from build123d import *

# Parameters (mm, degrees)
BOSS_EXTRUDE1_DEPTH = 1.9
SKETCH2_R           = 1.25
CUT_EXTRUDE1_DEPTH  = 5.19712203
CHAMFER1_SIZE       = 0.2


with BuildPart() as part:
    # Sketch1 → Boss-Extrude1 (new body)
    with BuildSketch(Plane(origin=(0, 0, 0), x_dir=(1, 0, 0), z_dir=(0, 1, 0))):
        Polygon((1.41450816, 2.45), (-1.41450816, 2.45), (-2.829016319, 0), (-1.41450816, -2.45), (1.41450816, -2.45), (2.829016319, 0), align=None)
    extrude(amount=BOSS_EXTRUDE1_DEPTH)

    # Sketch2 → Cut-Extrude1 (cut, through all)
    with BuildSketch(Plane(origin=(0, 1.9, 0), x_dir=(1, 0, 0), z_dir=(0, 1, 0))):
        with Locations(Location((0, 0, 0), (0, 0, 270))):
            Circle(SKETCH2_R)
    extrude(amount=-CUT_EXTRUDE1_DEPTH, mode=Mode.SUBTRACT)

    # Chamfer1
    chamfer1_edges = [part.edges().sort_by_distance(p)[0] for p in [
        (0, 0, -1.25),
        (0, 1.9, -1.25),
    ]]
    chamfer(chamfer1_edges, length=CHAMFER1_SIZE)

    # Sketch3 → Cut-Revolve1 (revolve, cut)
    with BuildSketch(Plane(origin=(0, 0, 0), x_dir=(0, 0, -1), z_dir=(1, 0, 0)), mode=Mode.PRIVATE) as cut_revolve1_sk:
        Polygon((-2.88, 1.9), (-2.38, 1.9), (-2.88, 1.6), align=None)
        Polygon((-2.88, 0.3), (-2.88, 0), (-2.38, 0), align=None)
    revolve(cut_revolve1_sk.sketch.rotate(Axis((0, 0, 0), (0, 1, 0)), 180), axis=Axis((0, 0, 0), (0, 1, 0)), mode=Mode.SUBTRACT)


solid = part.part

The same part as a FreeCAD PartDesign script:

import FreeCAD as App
import Part
import Sketcher

V = App.Vector
Q = App.Units.Quantity


def edges_at(feature, points):
    """Names of the edges that pass closest to the given points."""
    edges = feature.Shape.Edges
    near = lambda p: min(range(len(edges)), key=lambda i: edges[i].distToShape(Part.Vertex(*p))[0])
    return sorted({f"Edge{near(p) + 1}" for p in points})


def add_polygon(sketch, points):
    """Adds a closed chain of lines whose ends are joined by coincident constraints."""
    first, n = sketch.GeometryCount, len(points)
    for a, b in zip(points, points[1:] + points[:1]):
        sketch.addGeometry(Part.LineSegment(App.Vector(*a, 0), App.Vector(*b, 0)), False)
    for i in range(n):
        sketch.addConstraint(Sketcher.Constraint("Coincident", first + i, 2, first + (i + 1) % n, 1))

doc = App.newDocument("Part")
body = doc.addObject("PartDesign::Body", "Body")

sketch1 = body.newObject("Sketcher::SketchObject", "Sketch")
sketch1.AttachmentSupport = (doc.getObject("XZ_Plane"), [""])
sketch1.MapMode = "FlatFace"
add_polygon(sketch1, [(1.414508, -2.45), (-1.414508, -2.45), (-2.829016, 0), (-1.414508, 2.45), (1.414508, 2.45), (2.829016, 0)])
sketch1.addConstraint([
    Sketcher.Constraint("Horizontal", 0),
    Sketcher.Constraint("Horizontal", 3),
    Sketcher.Constraint("Symmetric", 0, 2, 3, 2, -1, 1),
    Sketcher.Constraint("Symmetric", 1, 2, 4, 2, -1, 1),
    Sketcher.Constraint("PointOnObject", 1, 2, -1),
    Sketcher.Constraint("Parallel", 2, 5),
    Sketcher.Constraint("Vertical", 0, 2, 2, 2),
    Sketcher.Constraint("Angle", 1, Q("120 deg")),
    Sketcher.Constraint("DistanceY", 0, 2, 2, 2, 4.9),
    Sketcher.Constraint("DistanceX", 0, 2, 0, 1, 2.829016),
])
pad1 = body.newObject("PartDesign::Pad", "Pad")
pad1.Profile = sketch1
pad1.Length = 1.9
pad1.Reversed = True

sketch2 = body.newObject("Sketcher::SketchObject", "Sketch001")
sketch2.AttachmentSupport = (doc.getObject("XZ_Plane"), [""])
sketch2.MapMode = "FlatFace"
sketch2.AttachmentOffset = App.Placement(V(0, 0, -1.9), App.Rotation())
sketch2.addGeometry(Part.Circle(V(0, 0, 0), V(0, 0, 1), 1.25), False)
sketch2.addConstraint([
    Sketcher.Constraint("Coincident", 0, 3, -1, 1),
    Sketcher.Constraint("Diameter", 0, 2.5),
])
pocket1 = body.newObject("PartDesign::Pocket", "Pocket")
pocket1.Profile = sketch2
pocket1.Type = "ThroughAll"
pocket1.Reversed = True
doc.recompute()

chamfer = body.newObject("PartDesign::Chamfer", "Chamfer")
chamfer.Base = (pocket1, edges_at(pocket1, [(0, 0, -1.25), (0, 1.9, -1.25)]))
chamfer.Size = 0.2

sketch3 = body.newObject("Sketcher::SketchObject", "Sketch002")
sketch3.AttachmentSupport = (doc.getObject("YZ_Plane"), [""])
sketch3.MapMode = "FlatFace"
add_polygon(sketch3, [(1.9, 2.38), (1.9, 2.88), (1.6, 2.88)])
add_polygon(sketch3, [(0.3, 2.88), (0, 2.88), (0, 2.38)])
sketch3.addConstraint([
    Sketcher.Constraint("Vertical", 0),
    Sketcher.Constraint("Horizontal", 1),
    Sketcher.Constraint("Horizontal", 3),
    Sketcher.Constraint("Vertical", 4),
    Sketcher.Constraint("PointOnObject", 3, 2, -2),
    Sketcher.Constraint("Horizontal", 1, 2, 3, 2),
    Sketcher.Constraint("Horizontal", 2, 2, 4, 2),
    Sketcher.Constraint("Equal", 1, 3),
    Sketcher.Constraint("DistanceX", 1, 2, 1, 1, 0.3),
    Sketcher.Constraint("DistanceY", 0, 1, 0, 2, 0.5),
    Sketcher.Constraint("DistanceX", -1, 1, 0, 2, 1.9),
    Sketcher.Constraint("DistanceY", -1, 1, 0, 2, 2.88),
])
groove = body.newObject("PartDesign::Groove", "Groove")
groove.Profile = sketch3
groove.ReferenceAxis = (sketch3, ["H_Axis"])
groove.Angle = 360

doc.recompute()
